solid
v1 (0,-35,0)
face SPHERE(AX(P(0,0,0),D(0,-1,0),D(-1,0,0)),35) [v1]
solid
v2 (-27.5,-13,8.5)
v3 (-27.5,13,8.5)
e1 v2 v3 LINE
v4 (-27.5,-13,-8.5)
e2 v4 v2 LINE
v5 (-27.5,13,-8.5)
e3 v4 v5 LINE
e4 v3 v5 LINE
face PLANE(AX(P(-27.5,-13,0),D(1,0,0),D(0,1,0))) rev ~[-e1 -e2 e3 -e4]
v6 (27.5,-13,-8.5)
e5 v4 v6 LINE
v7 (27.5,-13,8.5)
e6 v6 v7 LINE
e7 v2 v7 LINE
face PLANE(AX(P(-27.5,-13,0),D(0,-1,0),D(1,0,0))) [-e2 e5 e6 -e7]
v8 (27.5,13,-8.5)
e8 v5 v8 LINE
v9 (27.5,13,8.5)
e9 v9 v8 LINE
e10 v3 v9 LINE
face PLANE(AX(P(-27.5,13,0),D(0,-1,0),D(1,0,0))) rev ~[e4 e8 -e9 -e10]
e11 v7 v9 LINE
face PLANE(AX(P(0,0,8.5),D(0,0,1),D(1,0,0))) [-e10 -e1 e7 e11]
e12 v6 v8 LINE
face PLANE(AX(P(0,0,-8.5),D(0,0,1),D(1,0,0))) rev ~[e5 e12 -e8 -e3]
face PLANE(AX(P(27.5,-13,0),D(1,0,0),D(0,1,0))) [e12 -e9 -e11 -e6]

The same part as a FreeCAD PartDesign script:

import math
import FreeCAD as App
import Part
import Sketcher
from FreeCAD import Vector
Q = App.Units.Quantity


def add_polygon(sketch, points):
    """Adds a closed chain of lines whose ends are joined by coincident constraints."""
    first, n = sketch.GeometryCount, len(points)
    for a, b in zip(points, points[1:] + points[:1]):
        sketch.addGeometry(Part.LineSegment(App.Vector(*a, 0), App.Vector(*b, 0)), False)
    for i in range(n):
        sketch.addConstraint(Sketcher.Constraint("Coincident", first + i, 2, first + (i + 1) % n, 1))

doc = App.newDocument("Part")
params = doc.addObject("Spreadsheet::Sheet", "Params")
for row, (alias, value) in enumerate([
    ("sketch1_width", "55 mm"),
    ("sketch1_height", "26 mm"),
    ("pad1_length", "17 mm"),
    ("sketch2_radius", "35 mm"),
    ("revolution_angle", "360 deg"),
], start=1):
    params.set(f"A{row}", alias)
    params.set(f"B{row}", "=" + value)
    params.setAlias(f"B{row}", alias)

body = doc.addObject("PartDesign::Body", "Body")

sketch1 = body.newObject("Sketcher::SketchObject", "Sketch")
sketch1.AttachmentSupport = (doc.getObject("XY_Plane"), [""])
sketch1.MapMode = "FlatFace"
add_polygon(sketch1, [(-28, 13), (-28, -13), (28, -13), (28, 13)])
sketch1.addConstraint([
    Sketcher.Constraint("Vertical", 0),
    Sketcher.Constraint("Horizontal", 1),
    Sketcher.Constraint("Vertical", 2),
    Sketcher.Constraint("Horizontal", 3),
    Sketcher.Constraint("Symmetric", 0, 2, 2, 2, -1, 1),
    Sketcher.Constraint("DistanceX", 1, 1, 1, 2, Q("55 mm")),
    Sketcher.Constraint("DistanceY", 0, 2, 0, 1, Q("26 mm")),
])
sketch1.setExpression("Constraints[9]", "Params.sketch1_width")
sketch1.setExpression("Constraints[10]", "Params.sketch1_height")
pad1 = body.newObject("PartDesign::Pad", "Pad")
pad1.Profile = sketch1
pad1.setExpression("Length", "Params.pad1_length")
pad1.Midplane = True
body2 = doc.addObject("PartDesign::Body", "Body001")

sketch2 = body2.newObject("Sketcher::SketchObject", "Sketch001")
sketch2.AttachmentSupport = (doc.getObject("XY_Plane001"), [""])
sketch2.MapMode = "FlatFace"
sketch2.addGeometry([
    Part.LineSegment(Vector(0, -35, 0), Vector(0, 35, 0)),
    Part.ArcOfCircle(Part.Circle(Vector(0, 0, 0), Vector(0, 0, 1), 35), math.radians(90), math.radians(270)),
], False)
sketch2.addConstraint([
    Sketcher.Constraint("Coincident", 0, 1, 1, 2),
    Sketcher.Constraint("Coincident", 1, 1, 0, 2),
    Sketcher.Constraint("Vertical", 0),
    Sketcher.Constraint("Coincident", 1, 3, -1, 1),
    Sketcher.Constraint("PointOnObject", 0, 1, -2),
    Sketcher.Constraint("Radius", 1, Q("35 mm")),
])
sketch2.setExpression("Constraints[5]", "Params.sketch2_radius")
revolution = body2.newObject("PartDesign::Revolution", "Revolution")
revolution.Profile = sketch2
revolution.ReferenceAxis = (sketch2, ["V_Axis"])
revolution.setExpression("Angle", "Params.revolution_angle")

doc.recompute()
